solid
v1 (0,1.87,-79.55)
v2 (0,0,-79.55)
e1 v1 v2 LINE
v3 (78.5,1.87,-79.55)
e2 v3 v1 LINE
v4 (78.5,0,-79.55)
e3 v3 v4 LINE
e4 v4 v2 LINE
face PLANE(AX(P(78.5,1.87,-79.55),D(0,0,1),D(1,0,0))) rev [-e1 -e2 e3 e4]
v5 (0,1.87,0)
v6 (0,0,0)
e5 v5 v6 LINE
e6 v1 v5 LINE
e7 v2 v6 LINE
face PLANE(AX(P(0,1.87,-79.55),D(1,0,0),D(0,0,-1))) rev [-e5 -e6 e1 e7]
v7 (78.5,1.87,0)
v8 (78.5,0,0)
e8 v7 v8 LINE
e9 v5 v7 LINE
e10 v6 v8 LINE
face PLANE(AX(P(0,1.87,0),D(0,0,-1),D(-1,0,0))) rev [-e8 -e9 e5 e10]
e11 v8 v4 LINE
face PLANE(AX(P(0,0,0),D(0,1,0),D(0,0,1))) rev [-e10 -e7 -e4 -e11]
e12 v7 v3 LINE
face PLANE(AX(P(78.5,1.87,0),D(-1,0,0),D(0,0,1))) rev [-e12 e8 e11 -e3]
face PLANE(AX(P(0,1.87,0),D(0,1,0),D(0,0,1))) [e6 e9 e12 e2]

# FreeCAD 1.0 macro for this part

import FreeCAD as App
import Part
import Sketcher

V = App.Vector
Q = App.Units.Quantity


def add_polygon(sketch, points):
    """Adds a closed chain of lines whose ends are joined by coincident constraints."""
    first, n = sketch.GeometryCount, len(points)
    for a, b in zip(points, points[1:] + points[:1]):
        sketch.addGeometry(Part.LineSegment(App.Vector(*a, 0), App.Vector(*b, 0)), False)
    for i in range(n):
        sketch.addConstraint(Sketcher.Constraint("Coincident", first + i, 2, first + (i + 1) % n, 1))

doc = App.newDocument("Part")
body = doc.addObject("PartDesign::Body", "Body")

sketch1 = body.newObject("Sketcher::SketchObject", "Sketch")
sketch1.AttachmentSupport = (doc.getObject("XZ_Plane"), [""])
sketch1.MapMode = "FlatFace"
add_polygon(sketch1, [(0, -80), (0, 0), (78, 0), (78, -80)])
sketch1.addConstraint(Sketcher.Constraint("Vertical", 0))
sketch1.addConstraint(Sketcher.Constraint("Horizontal", 1))
sketch1.addConstraint(Sketcher.Constraint("Vertical", 2))
sketch1.addConstraint(Sketcher.Constraint("Horizontal", 3))
sketch1.addConstraint(Sketcher.Constraint("Coincident", 0, 2, -1, 1))
sketch1.addConstraint(Sketcher.Constraint("DistanceX", 1, 1, 1, 2, Q("78.5 mm")))
sketch1.addConstraint(Sketcher.Constraint("DistanceY", 0, 1, 0, 2, Q("79.55 mm")))
pad1 = body.newObject("PartDesign::Pad", "Pad")
pad1.Profile = sketch1
pad1.Length = 1.87
pad1.Reversed = True

doc.recompute()
